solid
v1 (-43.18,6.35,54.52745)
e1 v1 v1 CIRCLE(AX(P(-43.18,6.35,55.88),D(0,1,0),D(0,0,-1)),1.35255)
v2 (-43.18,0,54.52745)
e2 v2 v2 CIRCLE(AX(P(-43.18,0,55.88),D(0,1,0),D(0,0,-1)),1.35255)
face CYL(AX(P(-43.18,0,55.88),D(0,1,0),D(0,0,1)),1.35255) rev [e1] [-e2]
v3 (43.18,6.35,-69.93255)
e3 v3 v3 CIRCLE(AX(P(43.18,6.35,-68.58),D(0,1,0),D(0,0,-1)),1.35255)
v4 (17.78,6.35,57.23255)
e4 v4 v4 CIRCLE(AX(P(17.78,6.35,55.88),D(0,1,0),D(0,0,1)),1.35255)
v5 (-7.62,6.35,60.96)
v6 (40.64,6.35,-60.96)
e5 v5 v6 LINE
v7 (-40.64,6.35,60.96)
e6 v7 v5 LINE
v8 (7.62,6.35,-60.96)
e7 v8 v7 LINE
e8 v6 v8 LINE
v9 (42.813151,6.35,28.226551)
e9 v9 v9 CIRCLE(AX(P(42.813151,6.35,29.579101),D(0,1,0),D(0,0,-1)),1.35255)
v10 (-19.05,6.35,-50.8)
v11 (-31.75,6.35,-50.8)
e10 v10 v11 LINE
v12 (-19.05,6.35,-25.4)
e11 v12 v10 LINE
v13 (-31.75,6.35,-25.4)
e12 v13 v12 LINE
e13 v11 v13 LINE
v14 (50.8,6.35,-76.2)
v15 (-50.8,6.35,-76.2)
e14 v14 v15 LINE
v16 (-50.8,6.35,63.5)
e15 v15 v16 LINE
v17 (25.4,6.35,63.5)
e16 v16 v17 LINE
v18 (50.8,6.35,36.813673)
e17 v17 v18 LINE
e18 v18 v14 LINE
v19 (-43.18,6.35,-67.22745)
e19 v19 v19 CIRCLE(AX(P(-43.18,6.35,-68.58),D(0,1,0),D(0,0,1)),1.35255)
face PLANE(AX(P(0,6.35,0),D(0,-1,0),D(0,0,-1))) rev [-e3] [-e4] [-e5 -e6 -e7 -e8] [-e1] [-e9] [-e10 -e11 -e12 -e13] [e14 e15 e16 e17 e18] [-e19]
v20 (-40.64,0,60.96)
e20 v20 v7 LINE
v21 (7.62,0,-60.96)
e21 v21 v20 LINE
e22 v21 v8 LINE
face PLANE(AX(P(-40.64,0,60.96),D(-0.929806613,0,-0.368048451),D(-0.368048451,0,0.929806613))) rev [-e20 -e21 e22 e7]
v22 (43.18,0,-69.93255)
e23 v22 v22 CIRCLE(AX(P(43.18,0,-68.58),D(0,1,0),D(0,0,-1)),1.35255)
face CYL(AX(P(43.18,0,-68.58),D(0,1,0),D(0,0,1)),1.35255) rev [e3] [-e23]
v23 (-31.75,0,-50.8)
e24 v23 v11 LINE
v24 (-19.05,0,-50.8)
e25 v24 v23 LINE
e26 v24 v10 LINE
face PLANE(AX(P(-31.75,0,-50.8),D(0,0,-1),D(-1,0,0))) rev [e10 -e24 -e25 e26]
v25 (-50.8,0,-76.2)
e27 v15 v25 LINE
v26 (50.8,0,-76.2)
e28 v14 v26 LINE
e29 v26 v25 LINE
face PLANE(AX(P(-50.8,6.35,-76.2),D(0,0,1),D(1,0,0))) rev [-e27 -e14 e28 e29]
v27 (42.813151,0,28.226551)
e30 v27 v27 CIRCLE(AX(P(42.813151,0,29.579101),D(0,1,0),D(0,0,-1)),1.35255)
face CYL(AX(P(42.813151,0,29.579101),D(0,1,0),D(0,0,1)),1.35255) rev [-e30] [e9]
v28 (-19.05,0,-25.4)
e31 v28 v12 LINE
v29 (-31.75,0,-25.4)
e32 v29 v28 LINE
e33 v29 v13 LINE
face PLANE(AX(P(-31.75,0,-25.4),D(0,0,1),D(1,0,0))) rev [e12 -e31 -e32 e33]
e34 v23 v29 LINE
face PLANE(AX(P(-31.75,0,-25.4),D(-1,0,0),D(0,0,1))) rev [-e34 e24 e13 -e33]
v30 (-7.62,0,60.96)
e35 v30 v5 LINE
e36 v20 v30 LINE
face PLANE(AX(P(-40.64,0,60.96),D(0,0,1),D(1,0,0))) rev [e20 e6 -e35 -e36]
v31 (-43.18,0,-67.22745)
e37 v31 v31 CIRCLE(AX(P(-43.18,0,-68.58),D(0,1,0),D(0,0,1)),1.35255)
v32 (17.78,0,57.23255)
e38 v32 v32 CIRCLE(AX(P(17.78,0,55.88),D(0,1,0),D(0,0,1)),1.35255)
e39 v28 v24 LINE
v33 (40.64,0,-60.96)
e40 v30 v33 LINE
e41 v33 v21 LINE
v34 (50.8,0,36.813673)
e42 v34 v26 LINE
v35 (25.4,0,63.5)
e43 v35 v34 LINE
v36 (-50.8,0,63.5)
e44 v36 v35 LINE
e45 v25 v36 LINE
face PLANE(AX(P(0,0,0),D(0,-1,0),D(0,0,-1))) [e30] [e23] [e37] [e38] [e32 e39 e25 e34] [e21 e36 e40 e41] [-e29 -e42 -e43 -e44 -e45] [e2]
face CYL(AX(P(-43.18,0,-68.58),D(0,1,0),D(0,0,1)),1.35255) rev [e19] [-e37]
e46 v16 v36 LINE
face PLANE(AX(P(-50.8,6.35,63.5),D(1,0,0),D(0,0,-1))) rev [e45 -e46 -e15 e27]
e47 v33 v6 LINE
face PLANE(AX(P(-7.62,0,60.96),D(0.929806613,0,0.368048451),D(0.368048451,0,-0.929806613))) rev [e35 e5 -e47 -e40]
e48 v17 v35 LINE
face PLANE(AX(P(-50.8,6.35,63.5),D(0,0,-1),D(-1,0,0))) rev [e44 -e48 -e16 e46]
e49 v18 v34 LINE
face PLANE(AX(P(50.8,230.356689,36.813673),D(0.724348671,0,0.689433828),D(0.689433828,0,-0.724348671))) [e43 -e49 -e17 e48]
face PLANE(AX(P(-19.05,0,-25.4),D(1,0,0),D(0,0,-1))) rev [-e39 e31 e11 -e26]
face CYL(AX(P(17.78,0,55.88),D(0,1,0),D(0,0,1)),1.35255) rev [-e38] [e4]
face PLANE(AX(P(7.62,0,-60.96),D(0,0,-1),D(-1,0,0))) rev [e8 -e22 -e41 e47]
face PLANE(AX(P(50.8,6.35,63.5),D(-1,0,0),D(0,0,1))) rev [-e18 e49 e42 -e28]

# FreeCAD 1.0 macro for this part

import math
import FreeCAD as App
import Part
import Sketcher
from FreeCAD import Vector
Q = App.Units.Quantity


def add_polygon(sketch, points):
    """Adds a closed chain of lines whose ends are joined by coincident constraints."""
    first, n = sketch.GeometryCount, len(points)
    for a, b in zip(points, points[1:] + points[:1]):
        sketch.addGeometry(Part.LineSegment(App.Vector(*a, 0), App.Vector(*b, 0)), False)
    for i in range(n):
        sketch.addConstraint(Sketcher.Constraint("Coincident", first + i, 2, first + (i + 1) % n, 1))

doc = App.newDocument("Part")
body = doc.addObject("PartDesign::Body", "Body")

sketch1 = body.newObject("Sketcher::SketchObject", "Sketch")
sketch1.AttachmentSupport = (doc.getObject("XZ_Plane"), [""])
sketch1.MapMode = "FlatFace"
add_polygon(sketch1, [(-50.8, -76.2), (-50.8, 63.5), (50.8, 63.5), (50.8, -76.2)])
sketch1.addConstraint([
    Sketcher.Constraint("Vertical", 0),
    Sketcher.Constraint("Horizontal", 1),
    Sketcher.Constraint("Vertical", 2),
    Sketcher.Constraint("Horizontal", 3),
    Sketcher.Constraint("DistanceX", 1, 1, 1, 2, Q("4 in")),
    Sketcher.Constraint("DistanceY", 0, 1, 0, 2, Q("5.5 in")),
    Sketcher.Constraint("DistanceX", 0, 2, -1, 1, Q("2 in")),
    Sketcher.Constraint("DistanceY", 2, 2, -1, 1, Q("3 in")),
])
pad1 = body.newObject("PartDesign::Pad", "Pad")
pad1.Profile = sketch1
pad1.Length = Q("0.25 in")
pad1.Reversed = True

sketch2 = body.newObject("Sketcher::SketchObject", "Sketch001")
sketch2.AttachmentSupport = (doc.getObject("XZ_Plane"), [""])
sketch2.MapMode = "FlatFace"
sketch2.AttachmentOffset = App.Placement(Vector(0, 0, -0.25 * 25.4), App.Rotation())
sketch2.addGeometry([
    Part.LineSegment(Vector(30.263435, -59.140641, 0), Vector(-1.486565, -31.962641, 0)),
    Part.ArcOfCircle(Part.Circle(Vector(0, -30.226, 0), Vector(0, 0, 1), 2.286), math.radians(49.436474), math.radians(229.436474)),
    Part.LineSegment(Vector(1.486565, -28.489359, 0), Vector(33.236565, -55.667359, 0)),
    Part.ArcOfCircle(Part.Circle(Vector(31.75, -57.404, 0), Vector(0, 0, 1), 2.286), math.radians(-130.563526), math.radians(49.436474)),
    Part.LineSegment(Vector(-30.263435, 59.140641, 0), Vector(1.486565, 31.962641, 0)),
    Part.ArcOfCircle(Part.Circle(Vector(0, 30.226, 0), Vector(0, 0, 1), 2.286), math.radians(-130.563526), math.radians(49.436474)),
    Part.LineSegment(Vector(-1.486565, 28.489359, 0), Vector(-33.236565, 55.667359, 0)),
    Part.ArcOfCircle(Part.Circle(Vector(-31.75, 57.404, 0), Vector(0, 0, 1), 2.286), math.radians(49.436474), math.radians(229.436474)),
], False)
sketch2.addConstraint([
    Sketcher.Constraint("Tangent", 0, 2, 1, 2),
    Sketcher.Constraint("Tangent", 1, 1, 2, 1),
    Sketcher.Constraint("Tangent", 2, 2, 3, 2),
    Sketcher.Constraint("Tangent", 3, 1, 0, 1),
    Sketcher.Constraint("Tangent", 4, 2, 5, 2),
    Sketcher.Constraint("Tangent", 5, 1, 6, 1),
    Sketcher.Constraint("Tangent", 6, 2, 7, 2),
    Sketcher.Constraint("Tangent", 7, 1, 4, 1),
    Sketcher.Constraint("Equal", 1, 3),
    Sketcher.Constraint("Equal", 3, 5),
    Sketcher.Constraint("Equal", 5, 7),
    Sketcher.Constraint("Symmetric", 1, 3, 5, 3, -1, 1),
    Sketcher.Constraint("Symmetric", 3, 3, 7, 3, -1, 1),
    Sketcher.Constraint("PointOnObject", 1, 3, -2),
    Sketcher.Constraint("Radius", 1, Q("0.09 in")),
    Sketcher.Constraint("DistanceX", 7, 3, 3, 3, Q("2.5 in")),
    Sketcher.Constraint("DistanceY", 1, 3, -1, 1, Q("1.19 in")),
    Sketcher.Constraint("DistanceY", 3, 3, -1, 1, Q("2.26 in")),
])
pocket1 = body.newObject("PartDesign::Pocket", "Pocket")
pocket1.Profile = sketch2
pocket1.Type = "ThroughAll"
pocket1.Reversed = True

sketch3 = body.newObject("Sketcher::SketchObject", "Sketch002")
sketch3.AttachmentSupport = (doc.getObject("XZ_Plane"), [""])
sketch3.MapMode = "FlatFace"
sketch3.AttachmentOffset = App.Placement(Vector(0, 0, -0.25 * 25.4), App.Rotation())
add_polygon(sketch3, [(277.114298, -200.961809), (50.8, 36.813673), (25.4, 63.5), (-200.914298, 301.275483), (274.636667, 753.904079), (752.665264, 251.666787)])
sketch3.addConstraint([
    Sketcher.Constraint("Parallel", 0, 1),
    Sketcher.Constraint("Parallel", 1, 2),
    Sketcher.Constraint("Perpendicular", 2, 3),
    Sketcher.Constraint("Perpendicular", 3, 4),
    Sketcher.Constraint("Perpendicular", 4, 5),
    Sketcher.Constraint("Equal", 0, 2),
    Sketcher.Constraint("DistanceX", -1, 1, 0, 2, Q("2 in")),
    Sketcher.Constraint("DistanceX", -1, 1, 1, 2, Q("1 in")),
    Sketcher.Constraint("DistanceY", -1, 1, 1, 2, Q("2.5 in")),
    Sketcher.Constraint("Distance", 4, 693.364),
    Sketcher.Constraint("DistanceX", 2, 2, -1, 1, 200.914298),
    Sketcher.Constraint("DistanceY", -1, 1, 3, 2, 753.904079),
])
pocket2 = body.newObject("PartDesign::Pocket", "Pocket001")
pocket2.Profile = sketch3
pocket2.Type = "ThroughAll"
pocket2.Midplane = True

sketch4 = body.newObject("Sketcher::SketchObject", "Sketch003")
sketch4.AttachmentSupport = (doc.getObject("XZ_Plane"), [""])
sketch4.MapMode = "FlatFace"
sketch4.AttachmentOffset = App.Placement(Vector(0, 0, -0.25 * 25.4), App.Rotation())
add_polygon(sketch4, [(-40.64, 60.96), (-7.62, 60.96), (40.64, -60.96), (7.62, -60.96)])
sketch4.addConstraint([
    Sketcher.Constraint("Horizontal", 0),
    Sketcher.Constraint("Horizontal", 2),
    Sketcher.Constraint("Symmetric", 0, 2, 2, 2, -1, 1),
    Sketcher.Constraint("Parallel", 1, 3),
    Sketcher.Constraint("DistanceX", 0, 1, 0, 2, Q("1.3 in")),
    Sketcher.Constraint("DistanceX", 0, 2, -1, 1, Q("0.3 in")),
    Sketcher.Constraint("DistanceY", -1, 1, 0, 2, Q("2.4 in")),
])
pocket3 = body.newObject("PartDesign::Pocket", "Pocket002")
pocket3.Profile = sketch4
pocket3.Length = Q("0.25 in")
pocket3.Reversed = True

sketch5 = body.newObject("Sketcher::SketchObject", "Sketch004")
sketch5.AttachmentSupport = (doc.getObject("XZ_Plane"), [""])
sketch5.MapMode = "FlatFace"
sketch5.AttachmentOffset = App.Placement(Vector(0, 0, -0.25 * 25.4), App.Rotation())
add_polygon(sketch5, [(-31.75, -50.8), (-31.75, -25.4), (-19.05, -25.4), (-19.05, -50.8)])
sketch5.addConstraint([
    Sketcher.Constraint("Vertical", 0),
    Sketcher.Constraint("Horizontal", 1),
    Sketcher.Constraint("Vertical", 2),
    Sketcher.Constraint("Horizontal", 3),
    Sketcher.Constraint("DistanceY", 0, 1, 0, 2, Q("1 in")),
    Sketcher.Constraint("DistanceX", 1, 1, 1, 2, Q("0.5 in")),
    Sketcher.Constraint("DistanceY", 0, 2, -1, 1, Q("1 in")),
    Sketcher.Constraint("DistanceX", 0, 2, -1, 1, Q("1.25 in")),
])
pocket4 = body.newObject("PartDesign::Pocket", "Pocket003")
pocket4.Profile = sketch5
pocket4.Length = Q("0.25 in")
pocket4.Reversed = True

sketch6 = body.newObject("Sketcher::SketchObject", "Sketch005")
sketch6.AttachmentSupport = (doc.getObject("XZ_Plane"), [""])
sketch6.MapMode = "FlatFace"
sketch6.AttachmentOffset = App.Placement(Vector(0, 0, -0.25 * 25.4), App.Rotation())
sketch6.addGeometry([
    Part.Circle(Vector(-43.18, -68.58, 0), Vector(0, 0, 1), 1.35255),
    Part.Circle(Vector(43.18, -68.58, 0), Vector(0, 0, 1), 1.35255),
    Part.Circle(Vector(-43.18, 55.88, 0), Vector(0, 0, 1), 1.35255),
    Part.Circle(Vector(17.78, 55.88, 0), Vector(0, 0, 1), 1.35255),
    Part.Circle(Vector(42.813151, 29.579101, 0), Vector(0, 0, 1), 1.35255),
], False)
sketch6.addConstraint([
    Sketcher.Constraint("Equal", 0, 1),
    Sketcher.Constraint("Equal", 1, 2),
    Sketcher.Constraint("Equal", 2, 3),
    Sketcher.Constraint("Equal", 3, 4),
    Sketcher.Constraint("Symmetric", 0, 3, 1, 3, -2),
    Sketcher.Constraint("Horizontal", 2, 3, 3, 3),
    Sketcher.Constraint("Vertical", 0, 3, 2, 3),
    Sketcher.Constraint("DistanceX", 3, 3, 1, 3, Q("1 in")),
    Sketcher.Constraint("Diameter", 0, Q("0.1065 in")),
    Sketcher.Constraint("DistanceX", 0, 3, -1, 1, Q("1.7 in")),
    Sketcher.Constraint("DistanceY", 0, 3, -1, 1, Q("2.7 in")),
    Sketcher.Constraint("DistanceY", -1, 1, 2, 3, Q("2.2 in")),
    Sketcher.Constraint("DistanceY", -1, 1, 4, 3, 29.579101),
    Sketcher.Constraint("DistanceX", -1, 1, 4, 3, 42.813151),
])
pocket5 = body.newObject("PartDesign::Pocket", "Pocket004")
pocket5.Profile = sketch6
pocket5.Type = "ThroughAll"
pocket5.Reversed = True

doc.recompute()
